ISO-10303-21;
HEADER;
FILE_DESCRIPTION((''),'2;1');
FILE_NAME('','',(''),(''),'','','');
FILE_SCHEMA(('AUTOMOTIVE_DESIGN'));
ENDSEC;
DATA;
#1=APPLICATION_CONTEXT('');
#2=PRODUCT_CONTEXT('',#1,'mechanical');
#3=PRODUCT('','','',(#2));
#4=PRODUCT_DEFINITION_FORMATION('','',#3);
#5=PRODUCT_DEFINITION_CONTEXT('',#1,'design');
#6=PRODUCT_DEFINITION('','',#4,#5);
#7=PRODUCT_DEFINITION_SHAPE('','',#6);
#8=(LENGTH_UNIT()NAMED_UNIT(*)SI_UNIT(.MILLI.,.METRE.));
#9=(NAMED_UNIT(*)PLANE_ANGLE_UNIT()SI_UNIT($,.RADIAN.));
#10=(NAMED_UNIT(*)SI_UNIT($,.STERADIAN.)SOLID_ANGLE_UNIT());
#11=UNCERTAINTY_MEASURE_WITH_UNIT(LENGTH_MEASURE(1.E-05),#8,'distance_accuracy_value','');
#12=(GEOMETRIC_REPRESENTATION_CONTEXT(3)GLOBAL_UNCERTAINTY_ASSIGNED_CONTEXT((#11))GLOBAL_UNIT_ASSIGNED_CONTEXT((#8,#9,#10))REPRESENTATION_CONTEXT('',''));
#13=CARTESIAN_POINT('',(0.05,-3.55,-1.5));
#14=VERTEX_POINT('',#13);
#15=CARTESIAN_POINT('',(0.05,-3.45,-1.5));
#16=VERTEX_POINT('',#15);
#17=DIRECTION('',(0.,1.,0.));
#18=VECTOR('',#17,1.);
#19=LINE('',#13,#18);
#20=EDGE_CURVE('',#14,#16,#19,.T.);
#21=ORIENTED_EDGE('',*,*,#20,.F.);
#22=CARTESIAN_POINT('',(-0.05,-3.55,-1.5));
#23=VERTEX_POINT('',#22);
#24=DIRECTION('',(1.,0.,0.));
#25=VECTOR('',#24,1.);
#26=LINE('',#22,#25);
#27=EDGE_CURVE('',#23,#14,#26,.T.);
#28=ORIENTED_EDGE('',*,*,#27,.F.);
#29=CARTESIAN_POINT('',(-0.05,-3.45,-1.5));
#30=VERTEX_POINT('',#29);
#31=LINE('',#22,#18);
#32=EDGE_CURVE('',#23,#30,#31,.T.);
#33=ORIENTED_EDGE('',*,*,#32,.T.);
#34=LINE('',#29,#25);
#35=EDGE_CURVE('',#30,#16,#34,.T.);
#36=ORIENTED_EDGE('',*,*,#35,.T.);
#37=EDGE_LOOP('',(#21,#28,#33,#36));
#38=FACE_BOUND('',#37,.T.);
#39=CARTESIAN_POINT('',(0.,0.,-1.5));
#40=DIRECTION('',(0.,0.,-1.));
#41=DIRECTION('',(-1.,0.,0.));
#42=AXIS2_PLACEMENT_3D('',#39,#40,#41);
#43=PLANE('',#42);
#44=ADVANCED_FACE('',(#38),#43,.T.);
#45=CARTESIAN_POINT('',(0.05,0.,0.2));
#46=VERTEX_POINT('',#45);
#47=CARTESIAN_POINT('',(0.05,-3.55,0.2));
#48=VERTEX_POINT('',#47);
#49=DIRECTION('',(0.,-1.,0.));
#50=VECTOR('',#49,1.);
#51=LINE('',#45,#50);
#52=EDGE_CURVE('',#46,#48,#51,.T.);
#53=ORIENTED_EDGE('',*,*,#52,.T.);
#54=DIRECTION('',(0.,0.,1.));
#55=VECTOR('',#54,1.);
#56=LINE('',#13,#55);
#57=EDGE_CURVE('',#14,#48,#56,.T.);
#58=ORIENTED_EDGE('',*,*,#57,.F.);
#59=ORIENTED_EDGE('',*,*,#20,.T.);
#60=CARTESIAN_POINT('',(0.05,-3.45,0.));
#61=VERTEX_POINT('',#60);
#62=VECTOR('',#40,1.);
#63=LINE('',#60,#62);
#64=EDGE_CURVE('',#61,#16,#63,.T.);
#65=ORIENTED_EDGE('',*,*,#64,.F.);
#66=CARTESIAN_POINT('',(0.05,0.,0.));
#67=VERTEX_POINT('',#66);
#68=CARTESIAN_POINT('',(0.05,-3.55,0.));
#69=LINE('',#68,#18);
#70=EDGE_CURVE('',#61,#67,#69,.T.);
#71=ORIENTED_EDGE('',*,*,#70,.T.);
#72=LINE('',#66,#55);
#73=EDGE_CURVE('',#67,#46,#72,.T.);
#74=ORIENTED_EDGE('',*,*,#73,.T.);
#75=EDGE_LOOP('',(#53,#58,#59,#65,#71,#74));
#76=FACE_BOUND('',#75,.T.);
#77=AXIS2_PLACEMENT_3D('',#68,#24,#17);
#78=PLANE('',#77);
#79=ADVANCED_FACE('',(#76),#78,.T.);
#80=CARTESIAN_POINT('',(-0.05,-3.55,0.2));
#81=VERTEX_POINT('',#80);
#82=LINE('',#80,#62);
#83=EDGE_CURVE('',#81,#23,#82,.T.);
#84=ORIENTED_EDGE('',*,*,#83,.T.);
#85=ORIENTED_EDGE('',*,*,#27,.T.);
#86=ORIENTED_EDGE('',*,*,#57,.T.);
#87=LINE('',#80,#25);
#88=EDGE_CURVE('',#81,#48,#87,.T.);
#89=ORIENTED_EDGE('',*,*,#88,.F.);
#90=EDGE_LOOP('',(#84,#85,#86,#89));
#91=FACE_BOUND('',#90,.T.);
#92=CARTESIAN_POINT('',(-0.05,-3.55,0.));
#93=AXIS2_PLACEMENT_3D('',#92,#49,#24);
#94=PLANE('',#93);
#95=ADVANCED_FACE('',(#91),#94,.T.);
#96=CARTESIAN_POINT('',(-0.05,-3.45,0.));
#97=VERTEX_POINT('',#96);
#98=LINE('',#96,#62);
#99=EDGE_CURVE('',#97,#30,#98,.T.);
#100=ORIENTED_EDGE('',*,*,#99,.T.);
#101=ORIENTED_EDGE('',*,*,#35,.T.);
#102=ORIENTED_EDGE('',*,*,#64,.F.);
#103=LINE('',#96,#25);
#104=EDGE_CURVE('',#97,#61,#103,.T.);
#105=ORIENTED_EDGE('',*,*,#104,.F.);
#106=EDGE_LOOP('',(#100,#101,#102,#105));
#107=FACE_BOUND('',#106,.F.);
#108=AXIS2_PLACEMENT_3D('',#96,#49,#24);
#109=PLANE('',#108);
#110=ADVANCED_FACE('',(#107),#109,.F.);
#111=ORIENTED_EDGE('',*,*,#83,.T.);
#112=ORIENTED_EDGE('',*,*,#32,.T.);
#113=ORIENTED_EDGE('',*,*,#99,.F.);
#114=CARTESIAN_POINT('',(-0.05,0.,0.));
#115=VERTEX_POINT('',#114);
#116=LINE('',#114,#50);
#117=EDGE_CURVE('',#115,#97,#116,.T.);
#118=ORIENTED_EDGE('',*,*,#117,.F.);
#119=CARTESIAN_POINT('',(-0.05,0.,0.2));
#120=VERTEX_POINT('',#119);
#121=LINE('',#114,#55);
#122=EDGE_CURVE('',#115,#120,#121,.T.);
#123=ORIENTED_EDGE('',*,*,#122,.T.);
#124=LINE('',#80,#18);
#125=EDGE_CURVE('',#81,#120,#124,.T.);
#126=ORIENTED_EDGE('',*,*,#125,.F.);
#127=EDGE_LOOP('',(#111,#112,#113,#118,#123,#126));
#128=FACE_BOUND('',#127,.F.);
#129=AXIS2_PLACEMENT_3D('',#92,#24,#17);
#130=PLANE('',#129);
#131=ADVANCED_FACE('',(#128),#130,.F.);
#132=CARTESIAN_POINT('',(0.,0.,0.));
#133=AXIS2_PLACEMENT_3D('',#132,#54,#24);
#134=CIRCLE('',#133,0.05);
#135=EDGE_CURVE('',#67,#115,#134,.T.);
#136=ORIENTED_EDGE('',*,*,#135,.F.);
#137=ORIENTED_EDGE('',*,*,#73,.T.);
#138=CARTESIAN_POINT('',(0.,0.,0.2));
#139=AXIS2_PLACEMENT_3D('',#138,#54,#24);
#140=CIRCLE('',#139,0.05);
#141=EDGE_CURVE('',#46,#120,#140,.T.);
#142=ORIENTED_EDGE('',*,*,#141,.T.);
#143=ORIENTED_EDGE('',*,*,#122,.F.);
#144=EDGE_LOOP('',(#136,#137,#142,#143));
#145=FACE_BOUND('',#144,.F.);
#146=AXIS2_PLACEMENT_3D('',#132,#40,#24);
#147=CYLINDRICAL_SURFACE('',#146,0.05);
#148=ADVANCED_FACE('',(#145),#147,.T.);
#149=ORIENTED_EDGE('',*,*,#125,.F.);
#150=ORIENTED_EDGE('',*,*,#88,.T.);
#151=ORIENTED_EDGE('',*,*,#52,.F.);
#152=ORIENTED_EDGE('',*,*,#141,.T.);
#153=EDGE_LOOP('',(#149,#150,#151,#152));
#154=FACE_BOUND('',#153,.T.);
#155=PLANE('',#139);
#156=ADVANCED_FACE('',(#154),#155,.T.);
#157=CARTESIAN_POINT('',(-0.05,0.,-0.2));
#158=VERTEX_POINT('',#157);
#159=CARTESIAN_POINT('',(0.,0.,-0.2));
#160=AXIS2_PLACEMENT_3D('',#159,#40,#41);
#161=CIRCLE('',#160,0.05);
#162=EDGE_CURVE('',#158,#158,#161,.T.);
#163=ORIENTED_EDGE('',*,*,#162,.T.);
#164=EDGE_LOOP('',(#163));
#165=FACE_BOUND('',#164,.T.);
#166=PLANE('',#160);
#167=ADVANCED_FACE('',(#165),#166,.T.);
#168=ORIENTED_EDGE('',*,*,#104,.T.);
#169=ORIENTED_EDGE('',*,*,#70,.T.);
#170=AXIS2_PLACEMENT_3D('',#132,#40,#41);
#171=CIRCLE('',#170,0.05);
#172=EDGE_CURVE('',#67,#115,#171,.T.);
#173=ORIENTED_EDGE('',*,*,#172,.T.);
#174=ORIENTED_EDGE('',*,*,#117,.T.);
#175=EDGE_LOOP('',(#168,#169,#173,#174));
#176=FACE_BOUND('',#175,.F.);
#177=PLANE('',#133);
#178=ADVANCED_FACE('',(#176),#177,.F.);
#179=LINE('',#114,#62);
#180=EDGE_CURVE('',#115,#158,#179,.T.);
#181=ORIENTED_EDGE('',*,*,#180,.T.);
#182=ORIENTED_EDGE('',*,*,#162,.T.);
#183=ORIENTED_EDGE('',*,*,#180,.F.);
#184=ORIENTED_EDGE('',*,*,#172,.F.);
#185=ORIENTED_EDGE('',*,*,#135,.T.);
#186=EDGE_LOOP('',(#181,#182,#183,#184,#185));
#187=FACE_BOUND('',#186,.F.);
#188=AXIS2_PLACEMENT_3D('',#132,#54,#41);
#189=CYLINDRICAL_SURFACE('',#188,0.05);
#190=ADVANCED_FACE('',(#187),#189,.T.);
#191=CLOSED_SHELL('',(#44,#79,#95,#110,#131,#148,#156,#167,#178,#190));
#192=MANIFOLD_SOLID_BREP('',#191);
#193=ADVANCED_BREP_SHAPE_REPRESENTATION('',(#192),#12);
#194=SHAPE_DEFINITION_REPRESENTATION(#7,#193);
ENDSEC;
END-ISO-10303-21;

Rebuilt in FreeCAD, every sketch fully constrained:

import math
import FreeCAD as App
import Part
import Sketcher
from FreeCAD import Vector

doc = App.newDocument("Part")
body = doc.addObject("PartDesign::Body", "Body")

# Sketch on XY plane
sketch1 = doc.addObject("Sketcher::SketchObject", "Sketch")
body.addObject(sketch1)
sketch1.AttachmentSupport = (doc.XY_Plane, [""])
sketch1.MapMode = "FlatFace"
sketch1.addGeometry(Part.ArcOfCircle(Part.Circle(Vector(0, 0, 0), Vector(0, 0, 1), 0.05), math.radians(0), math.radians(180)), False)
sketch1.addGeometry(Part.LineSegment(Vector(-0.05, 0, 0), Vector(-0.05, -3.55, 0)), False)
sketch1.addGeometry(Part.LineSegment(Vector(-0.05, -3.55, 0), Vector(0.05, -3.55, 0)), False)
sketch1.addGeometry(Part.LineSegment(Vector(0.05, -3.55, 0), Vector(0.05, 0, 0)), False)
sketch1.addConstraint(Sketcher.Constraint("Tangent", 0, 2, 1, 1))
sketch1.addConstraint(Sketcher.Constraint("Coincident", 1, 2, 2, 1))
sketch1.addConstraint(Sketcher.Constraint("Coincident", 2, 2, 3, 1))
sketch1.addConstraint(Sketcher.Constraint("Tangent", 3, 2, 0, 1))
sketch1.addConstraint(Sketcher.Constraint("Vertical", 1))
sketch1.addConstraint(Sketcher.Constraint("Horizontal", 2))
sketch1.addConstraint(Sketcher.Constraint("Vertical", 3))
sketch1.addConstraint(Sketcher.Constraint("Coincident", 0, 3, -1, 1))
sketch1.addConstraint(Sketcher.Constraint("Radius", 0, 0.05))
sketch1.addConstraint(Sketcher.Constraint("DistanceY", 1, 2, 1, 1, 3.55))
pad1 = doc.addObject("PartDesign::Pad", "Pad")
body.addObject(pad1)
pad1.Profile = sketch1
pad1.Length = 0.2

# Sketch on XY plane
sketch2 = doc.addObject("Sketcher::SketchObject", "Sketch001")
body.addObject(sketch2)
sketch2.AttachmentSupport = (doc.XY_Plane, [""])
sketch2.MapMode = "FlatFace"
sketch2.addGeometry(Part.Circle(Vector(0, 0, 0), Vector(0, 0, 1), 0.05), False)
sketch2.addConstraint(Sketcher.Constraint("Coincident", 0, 3, -1, 1))
sketch2.addConstraint(Sketcher.Constraint("Diameter", 0, 0.1))
pad2 = doc.addObject("PartDesign::Pad", "Pad001")
body.addObject(pad2)
pad2.Profile = sketch2
pad2.Length = 0.2
pad2.Reversed = True

# Sketch on XY plane
sketch3 = doc.addObject("Sketcher::SketchObject", "Sketch002")
body.addObject(sketch3)
sketch3.AttachmentSupport = (doc.XY_Plane, [""])
sketch3.MapMode = "FlatFace"
sketch3.addGeometry(Part.LineSegment(Vector(0.05, -3.55, 0), Vector(-0.05, -3.55, 0)), False)
sketch3.addGeometry(Part.LineSegment(Vector(-0.05, -3.55, 0), Vector(-0.05, -3.45, 0)), False)
sketch3.addGeometry(Part.LineSegment(Vector(-0.05, -3.45, 0), Vector(0.05, -3.45, 0)), False)
sketch3.addGeometry(Part.LineSegment(Vector(0.05, -3.45, 0), Vector(0.05, -3.55, 0)), False)
sketch3.addConstraint(Sketcher.Constraint("Coincident", 0, 2, 1, 1))
sketch3.addConstraint(Sketcher.Constraint("Coincident", 1, 2, 2, 1))
sketch3.addConstraint(Sketcher.Constraint("Coincident", 2, 2, 3, 1))
sketch3.addConstraint(Sketcher.Constraint("Coincident", 3, 2, 0, 1))
sketch3.addConstraint(Sketcher.Constraint("Horizontal", 0))
sketch3.addConstraint(Sketcher.Constraint("Vertical", 1))
sketch3.addConstraint(Sketcher.Constraint("Horizontal", 2))
sketch3.addConstraint(Sketcher.Constraint("Vertical", 3))
sketch3.addConstraint(Sketcher.Constraint("Equal", 2, 1))
sketch3.addConstraint(Sketcher.Constraint("DistanceX", 0, 2, 0, 1, 0.1))
sketch3.addConstraint(Sketcher.Constraint("DistanceX", 0, 2, -1, 1, 0.05))
sketch3.addConstraint(Sketcher.Constraint("DistanceY", 0, 2, -1, 1, 3.55))
pad3 = doc.addObject("PartDesign::Pad", "Pad002")
body.addObject(pad3)
pad3.Profile = sketch3
pad3.Length = 1.5
pad3.Reversed = True

doc.recompute()
